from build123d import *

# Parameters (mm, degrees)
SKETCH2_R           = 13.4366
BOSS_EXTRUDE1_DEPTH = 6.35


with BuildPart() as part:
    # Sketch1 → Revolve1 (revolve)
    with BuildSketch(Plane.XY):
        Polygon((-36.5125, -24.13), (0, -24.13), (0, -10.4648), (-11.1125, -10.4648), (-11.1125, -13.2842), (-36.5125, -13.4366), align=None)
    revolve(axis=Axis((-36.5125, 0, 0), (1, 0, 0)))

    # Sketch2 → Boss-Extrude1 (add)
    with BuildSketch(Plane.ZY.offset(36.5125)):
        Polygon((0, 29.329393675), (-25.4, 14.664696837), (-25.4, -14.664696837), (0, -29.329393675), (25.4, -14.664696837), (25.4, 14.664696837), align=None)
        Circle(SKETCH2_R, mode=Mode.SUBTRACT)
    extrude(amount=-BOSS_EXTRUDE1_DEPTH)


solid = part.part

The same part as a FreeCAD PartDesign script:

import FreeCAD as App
import Part
import Sketcher
from FreeCAD import Vector
Q = App.Units.Quantity


def add_polygon(sketch, points):
    """Adds a closed chain of lines whose ends are joined by coincident constraints."""
    first, n = sketch.GeometryCount, len(points)
    for a, b in zip(points, points[1:] + points[:1]):
        sketch.addGeometry(Part.LineSegment(App.Vector(*a, 0), App.Vector(*b, 0)), False)
    for i in range(n):
        sketch.addConstraint(Sketcher.Constraint("Coincident", first + i, 2, first + (i + 1) % n, 1))

doc = App.newDocument("Part")
body = doc.addObject("PartDesign::Body", "Body")

sketch1 = body.newObject("Sketcher::SketchObject", "Sketch")
sketch1.AttachmentSupport = (doc.getObject("XY_Plane"), [""])
sketch1.MapMode = "FlatFace"
add_polygon(sketch1, [(-36.5125, -24.13), (0, -24.13), (0, -10.4648), (-11.1125, -10.4648), (-11.1125, -13.2842), (-36.5125, -13.4366)])
sketch1.addConstraint(Sketcher.Constraint("Horizontal", 0))
sketch1.addConstraint(Sketcher.Constraint("Vertical", 1))
sketch1.addConstraint(Sketcher.Constraint("Horizontal", 2))
sketch1.addConstraint(Sketcher.Constraint("Vertical", 3))
sketch1.addConstraint(Sketcher.Constraint("Vertical", 5))
sketch1.addConstraint(Sketcher.Constraint("PointOnObject", 0, 2, -2))
sketch1.addConstraint(Sketcher.Constraint("DistanceX", 4, 2, 3, 2, Q("1 in")))
sketch1.addConstraint(Sketcher.Constraint("DistanceX", 0, 1, 0, 2, Q("1.4375 in")))
sketch1.addConstraint(Sketcher.Constraint("DistanceY", 1, 1, 1, 2, Q("0.538 in")))
sketch1.addConstraint(Sketcher.Constraint("DistanceY", 3, 2, 3, 1, Q("0.111 in")))
sketch1.addConstraint(Sketcher.Constraint("DistanceY", 5, 2, 5, 1, Q("0.421 in")))
sketch1.addConstraint(Sketcher.Constraint("DistanceY", 0, 2, -1, 1, Q("0.95 in")))
revolution = body.newObject("PartDesign::Revolution", "Revolution")
revolution.Profile = sketch1
revolution.ReferenceAxis = (sketch1, ["H_Axis"])
revolution.Angle = 360

sketch2 = body.newObject("Sketcher::SketchObject", "Sketch001")
sketch2.AttachmentSupport = (doc.getObject("YZ_Plane"), [""])
sketch2.MapMode = "FlatFace"
sketch2.AttachmentOffset = App.Placement(Vector(0, 0, -1.4375 * 25.4), App.Rotation())
add_polygon(sketch2, [(29.329394, 0), (14.664697, -25.4), (-14.664697, -25.4), (-29.329394, 0), (-14.664697, 25.4), (14.664697, 25.4)])
sketch2.addGeometry(Part.Circle(Vector(0, 0, 0), Vector(0, 0, 1), 13.4366), False)
sketch2.addConstraint(Sketcher.Constraint("Horizontal", 1))
sketch2.addConstraint(Sketcher.Constraint("Horizontal", 4))
sketch2.addConstraint(Sketcher.Constraint("Coincident", 6, 3, -1, 1))
sketch2.addConstraint(Sketcher.Constraint("Symmetric", 0, 2, 3, 2, -1, 1))
sketch2.addConstraint(Sketcher.Constraint("Symmetric", 2, 2, 5, 2, -1, 1))
sketch2.addConstraint(Sketcher.Constraint("PointOnObject", 2, 2, -1))
sketch2.addConstraint(Sketcher.Constraint("Parallel", 2, 5))
sketch2.addConstraint(Sketcher.Constraint("Vertical", 1, 2, 3, 2))
sketch2.addConstraint(Sketcher.Constraint("Diameter", 6, Q("1.058 in")))
sketch2.addConstraint(Sketcher.Constraint("DistanceY", 0, 2, -1, 1, Q("1 in")))
sketch2.addConstraint(Sketcher.Constraint("Angle", 0, Q("-120 deg")))
sketch2.addConstraint(Sketcher.Constraint("DistanceX", 1, 2, 1, 1, 29.329394))
pad1 = body.newObject("PartDesign::Pad", "Pad")
pad1.Profile = sketch2
pad1.Length = Q("0.25 in")

doc.recompute()
